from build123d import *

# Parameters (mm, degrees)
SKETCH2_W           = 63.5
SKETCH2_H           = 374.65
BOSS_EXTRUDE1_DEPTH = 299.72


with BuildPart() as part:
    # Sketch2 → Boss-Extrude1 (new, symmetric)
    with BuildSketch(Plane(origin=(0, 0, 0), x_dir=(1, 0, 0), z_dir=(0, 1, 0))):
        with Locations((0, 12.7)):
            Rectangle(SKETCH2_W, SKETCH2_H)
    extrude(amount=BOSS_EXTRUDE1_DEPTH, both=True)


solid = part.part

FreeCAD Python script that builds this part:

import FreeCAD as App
import Part
import Sketcher
Q = App.Units.Quantity


def add_polygon(sketch, points):
    """Adds a closed chain of lines whose ends are joined by coincident constraints."""
    first, n = sketch.GeometryCount, len(points)
    for a, b in zip(points, points[1:] + points[:1]):
        sketch.addGeometry(Part.LineSegment(App.Vector(*a, 0), App.Vector(*b, 0)), False)
    for i in range(n):
        sketch.addConstraint(Sketcher.Constraint("Coincident", first + i, 2, first + (i + 1) % n, 1))

doc = App.newDocument("Part")
body = doc.addObject("PartDesign::Body", "Body")

# Sketch on XZ plane
sketch1 = doc.addObject("Sketcher::SketchObject", "Sketch")
body.addObject(sketch1)
sketch1.AttachmentSupport = (doc.XZ_Plane, [""])
sketch1.MapMode = "FlatFace"
add_polygon(sketch1, [(-32, -200), (-32, 175), (32, 175), (32, -200)])  # lines 0-3
sketch1.addConstraint(Sketcher.Constraint("Vertical", 0))
sketch1.addConstraint(Sketcher.Constraint("Horizontal", 1))
sketch1.addConstraint(Sketcher.Constraint("Vertical", 2))
sketch1.addConstraint(Sketcher.Constraint("Horizontal", 3))
sketch1.addConstraint(Sketcher.Constraint("DistanceX", 1, 1, 1, 2, Q("2.5 in")))
sketch1.addConstraint(Sketcher.Constraint("DistanceY", 0, 1, 0, 2, Q("14.75 in")))
sketch1.addConstraint(Sketcher.Constraint("DistanceX", 0, 2, -1, 1, Q("1.25 in")))
sketch1.addConstraint(Sketcher.Constraint("DistanceY", -1, 1, 0, 2, Q("6.875 in")))
pad1 = doc.addObject("PartDesign::Pad", "Pad")
body.addObject(pad1)
pad1.Profile = sketch1
pad1.Length = Q("23.6 in")
pad1.Midplane = True

doc.recompute()
